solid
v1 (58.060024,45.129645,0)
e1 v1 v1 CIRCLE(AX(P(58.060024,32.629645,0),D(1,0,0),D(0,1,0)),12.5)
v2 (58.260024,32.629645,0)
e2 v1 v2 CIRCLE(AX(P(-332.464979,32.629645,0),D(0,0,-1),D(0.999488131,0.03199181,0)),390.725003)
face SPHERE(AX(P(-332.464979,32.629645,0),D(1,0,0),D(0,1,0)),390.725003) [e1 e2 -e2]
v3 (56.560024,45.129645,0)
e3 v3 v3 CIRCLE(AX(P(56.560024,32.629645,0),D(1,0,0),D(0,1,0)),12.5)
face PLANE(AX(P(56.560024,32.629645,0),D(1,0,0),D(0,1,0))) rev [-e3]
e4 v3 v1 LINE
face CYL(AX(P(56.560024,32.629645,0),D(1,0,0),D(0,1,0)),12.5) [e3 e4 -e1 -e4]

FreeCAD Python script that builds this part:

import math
import FreeCAD as App
import Part
import Sketcher
from FreeCAD import Vector
Q = App.Units.Quantity

doc = App.newDocument("Part")
body = doc.addObject("PartDesign::Body", "Body")

sketch1 = doc.addObject("Sketcher::SketchObject", "Sketch")
body.addObject(sketch1)
sketch1.AttachmentSupport = (doc.XY_Plane, [""])
sketch1.MapMode = "FlatFace"
sketch1.addGeometry([
    Part.LineSegment(Vector(56.560024, 45.129645, 0), Vector(56.560024, 32.629645, 0)),
    Part.LineSegment(Vector(56.560024, 32.629645, 0), Vector(58.260024, 32.629645, 0)),
    Part.ArcOfCircle(Part.Circle(Vector(-332.464979, 32.629645, 0), Vector(0, 0, 1), 390.725003), math.radians(0), math.radians(1.833309)),
    Part.LineSegment(Vector(58.060024, 45.129645, 0), Vector(56.560024, 45.129645, 0)),
], False)
sketch1.addGeometry(Part.LineSegment(Vector(-332.464979, 32.629645, 0), Vector(58.260024, 32.629645, 0)), True)
sketch1.addConstraint([
    Sketcher.Constraint("Coincident", 0, 2, 1, 1),
    Sketcher.Constraint("Coincident", 1, 2, 2, 1),
    Sketcher.Constraint("Coincident", 2, 2, 3, 1),
    Sketcher.Constraint("Coincident", 3, 2, 0, 1),
    Sketcher.Constraint("Vertical", 0),
    Sketcher.Constraint("Horizontal", 1),
    Sketcher.Constraint("Horizontal", 3),
    Sketcher.Constraint("Horizontal", 4),
    Sketcher.Constraint("Coincident", 4, 1, 2, 3),
    Sketcher.Constraint("Coincident", 4, 2, 1, 2),
    Sketcher.Constraint("DistanceX", 1, 1, 1, 2, Q("1.7 mm")),
    Sketcher.Constraint("DistanceX", 3, 2, 3, 1, Q("1.5 mm")),
    Sketcher.Constraint("DistanceY", 0, 2, 0, 1, Q("12.5 mm")),
    Sketcher.Constraint("DistanceX", 2, 3, -1, 1, Q("332.464979 mm")),
    Sketcher.Constraint("DistanceY", -1, 1, 2, 3, Q("32.629645 mm")),
])
revolution = doc.addObject("PartDesign::Revolution", "Revolution")
body.addObject(revolution)
revolution.Profile = sketch1
revolution.ReferenceAxis = (sketch1, ["Axis0"])
revolution.Angle = 360

doc.recompute()
